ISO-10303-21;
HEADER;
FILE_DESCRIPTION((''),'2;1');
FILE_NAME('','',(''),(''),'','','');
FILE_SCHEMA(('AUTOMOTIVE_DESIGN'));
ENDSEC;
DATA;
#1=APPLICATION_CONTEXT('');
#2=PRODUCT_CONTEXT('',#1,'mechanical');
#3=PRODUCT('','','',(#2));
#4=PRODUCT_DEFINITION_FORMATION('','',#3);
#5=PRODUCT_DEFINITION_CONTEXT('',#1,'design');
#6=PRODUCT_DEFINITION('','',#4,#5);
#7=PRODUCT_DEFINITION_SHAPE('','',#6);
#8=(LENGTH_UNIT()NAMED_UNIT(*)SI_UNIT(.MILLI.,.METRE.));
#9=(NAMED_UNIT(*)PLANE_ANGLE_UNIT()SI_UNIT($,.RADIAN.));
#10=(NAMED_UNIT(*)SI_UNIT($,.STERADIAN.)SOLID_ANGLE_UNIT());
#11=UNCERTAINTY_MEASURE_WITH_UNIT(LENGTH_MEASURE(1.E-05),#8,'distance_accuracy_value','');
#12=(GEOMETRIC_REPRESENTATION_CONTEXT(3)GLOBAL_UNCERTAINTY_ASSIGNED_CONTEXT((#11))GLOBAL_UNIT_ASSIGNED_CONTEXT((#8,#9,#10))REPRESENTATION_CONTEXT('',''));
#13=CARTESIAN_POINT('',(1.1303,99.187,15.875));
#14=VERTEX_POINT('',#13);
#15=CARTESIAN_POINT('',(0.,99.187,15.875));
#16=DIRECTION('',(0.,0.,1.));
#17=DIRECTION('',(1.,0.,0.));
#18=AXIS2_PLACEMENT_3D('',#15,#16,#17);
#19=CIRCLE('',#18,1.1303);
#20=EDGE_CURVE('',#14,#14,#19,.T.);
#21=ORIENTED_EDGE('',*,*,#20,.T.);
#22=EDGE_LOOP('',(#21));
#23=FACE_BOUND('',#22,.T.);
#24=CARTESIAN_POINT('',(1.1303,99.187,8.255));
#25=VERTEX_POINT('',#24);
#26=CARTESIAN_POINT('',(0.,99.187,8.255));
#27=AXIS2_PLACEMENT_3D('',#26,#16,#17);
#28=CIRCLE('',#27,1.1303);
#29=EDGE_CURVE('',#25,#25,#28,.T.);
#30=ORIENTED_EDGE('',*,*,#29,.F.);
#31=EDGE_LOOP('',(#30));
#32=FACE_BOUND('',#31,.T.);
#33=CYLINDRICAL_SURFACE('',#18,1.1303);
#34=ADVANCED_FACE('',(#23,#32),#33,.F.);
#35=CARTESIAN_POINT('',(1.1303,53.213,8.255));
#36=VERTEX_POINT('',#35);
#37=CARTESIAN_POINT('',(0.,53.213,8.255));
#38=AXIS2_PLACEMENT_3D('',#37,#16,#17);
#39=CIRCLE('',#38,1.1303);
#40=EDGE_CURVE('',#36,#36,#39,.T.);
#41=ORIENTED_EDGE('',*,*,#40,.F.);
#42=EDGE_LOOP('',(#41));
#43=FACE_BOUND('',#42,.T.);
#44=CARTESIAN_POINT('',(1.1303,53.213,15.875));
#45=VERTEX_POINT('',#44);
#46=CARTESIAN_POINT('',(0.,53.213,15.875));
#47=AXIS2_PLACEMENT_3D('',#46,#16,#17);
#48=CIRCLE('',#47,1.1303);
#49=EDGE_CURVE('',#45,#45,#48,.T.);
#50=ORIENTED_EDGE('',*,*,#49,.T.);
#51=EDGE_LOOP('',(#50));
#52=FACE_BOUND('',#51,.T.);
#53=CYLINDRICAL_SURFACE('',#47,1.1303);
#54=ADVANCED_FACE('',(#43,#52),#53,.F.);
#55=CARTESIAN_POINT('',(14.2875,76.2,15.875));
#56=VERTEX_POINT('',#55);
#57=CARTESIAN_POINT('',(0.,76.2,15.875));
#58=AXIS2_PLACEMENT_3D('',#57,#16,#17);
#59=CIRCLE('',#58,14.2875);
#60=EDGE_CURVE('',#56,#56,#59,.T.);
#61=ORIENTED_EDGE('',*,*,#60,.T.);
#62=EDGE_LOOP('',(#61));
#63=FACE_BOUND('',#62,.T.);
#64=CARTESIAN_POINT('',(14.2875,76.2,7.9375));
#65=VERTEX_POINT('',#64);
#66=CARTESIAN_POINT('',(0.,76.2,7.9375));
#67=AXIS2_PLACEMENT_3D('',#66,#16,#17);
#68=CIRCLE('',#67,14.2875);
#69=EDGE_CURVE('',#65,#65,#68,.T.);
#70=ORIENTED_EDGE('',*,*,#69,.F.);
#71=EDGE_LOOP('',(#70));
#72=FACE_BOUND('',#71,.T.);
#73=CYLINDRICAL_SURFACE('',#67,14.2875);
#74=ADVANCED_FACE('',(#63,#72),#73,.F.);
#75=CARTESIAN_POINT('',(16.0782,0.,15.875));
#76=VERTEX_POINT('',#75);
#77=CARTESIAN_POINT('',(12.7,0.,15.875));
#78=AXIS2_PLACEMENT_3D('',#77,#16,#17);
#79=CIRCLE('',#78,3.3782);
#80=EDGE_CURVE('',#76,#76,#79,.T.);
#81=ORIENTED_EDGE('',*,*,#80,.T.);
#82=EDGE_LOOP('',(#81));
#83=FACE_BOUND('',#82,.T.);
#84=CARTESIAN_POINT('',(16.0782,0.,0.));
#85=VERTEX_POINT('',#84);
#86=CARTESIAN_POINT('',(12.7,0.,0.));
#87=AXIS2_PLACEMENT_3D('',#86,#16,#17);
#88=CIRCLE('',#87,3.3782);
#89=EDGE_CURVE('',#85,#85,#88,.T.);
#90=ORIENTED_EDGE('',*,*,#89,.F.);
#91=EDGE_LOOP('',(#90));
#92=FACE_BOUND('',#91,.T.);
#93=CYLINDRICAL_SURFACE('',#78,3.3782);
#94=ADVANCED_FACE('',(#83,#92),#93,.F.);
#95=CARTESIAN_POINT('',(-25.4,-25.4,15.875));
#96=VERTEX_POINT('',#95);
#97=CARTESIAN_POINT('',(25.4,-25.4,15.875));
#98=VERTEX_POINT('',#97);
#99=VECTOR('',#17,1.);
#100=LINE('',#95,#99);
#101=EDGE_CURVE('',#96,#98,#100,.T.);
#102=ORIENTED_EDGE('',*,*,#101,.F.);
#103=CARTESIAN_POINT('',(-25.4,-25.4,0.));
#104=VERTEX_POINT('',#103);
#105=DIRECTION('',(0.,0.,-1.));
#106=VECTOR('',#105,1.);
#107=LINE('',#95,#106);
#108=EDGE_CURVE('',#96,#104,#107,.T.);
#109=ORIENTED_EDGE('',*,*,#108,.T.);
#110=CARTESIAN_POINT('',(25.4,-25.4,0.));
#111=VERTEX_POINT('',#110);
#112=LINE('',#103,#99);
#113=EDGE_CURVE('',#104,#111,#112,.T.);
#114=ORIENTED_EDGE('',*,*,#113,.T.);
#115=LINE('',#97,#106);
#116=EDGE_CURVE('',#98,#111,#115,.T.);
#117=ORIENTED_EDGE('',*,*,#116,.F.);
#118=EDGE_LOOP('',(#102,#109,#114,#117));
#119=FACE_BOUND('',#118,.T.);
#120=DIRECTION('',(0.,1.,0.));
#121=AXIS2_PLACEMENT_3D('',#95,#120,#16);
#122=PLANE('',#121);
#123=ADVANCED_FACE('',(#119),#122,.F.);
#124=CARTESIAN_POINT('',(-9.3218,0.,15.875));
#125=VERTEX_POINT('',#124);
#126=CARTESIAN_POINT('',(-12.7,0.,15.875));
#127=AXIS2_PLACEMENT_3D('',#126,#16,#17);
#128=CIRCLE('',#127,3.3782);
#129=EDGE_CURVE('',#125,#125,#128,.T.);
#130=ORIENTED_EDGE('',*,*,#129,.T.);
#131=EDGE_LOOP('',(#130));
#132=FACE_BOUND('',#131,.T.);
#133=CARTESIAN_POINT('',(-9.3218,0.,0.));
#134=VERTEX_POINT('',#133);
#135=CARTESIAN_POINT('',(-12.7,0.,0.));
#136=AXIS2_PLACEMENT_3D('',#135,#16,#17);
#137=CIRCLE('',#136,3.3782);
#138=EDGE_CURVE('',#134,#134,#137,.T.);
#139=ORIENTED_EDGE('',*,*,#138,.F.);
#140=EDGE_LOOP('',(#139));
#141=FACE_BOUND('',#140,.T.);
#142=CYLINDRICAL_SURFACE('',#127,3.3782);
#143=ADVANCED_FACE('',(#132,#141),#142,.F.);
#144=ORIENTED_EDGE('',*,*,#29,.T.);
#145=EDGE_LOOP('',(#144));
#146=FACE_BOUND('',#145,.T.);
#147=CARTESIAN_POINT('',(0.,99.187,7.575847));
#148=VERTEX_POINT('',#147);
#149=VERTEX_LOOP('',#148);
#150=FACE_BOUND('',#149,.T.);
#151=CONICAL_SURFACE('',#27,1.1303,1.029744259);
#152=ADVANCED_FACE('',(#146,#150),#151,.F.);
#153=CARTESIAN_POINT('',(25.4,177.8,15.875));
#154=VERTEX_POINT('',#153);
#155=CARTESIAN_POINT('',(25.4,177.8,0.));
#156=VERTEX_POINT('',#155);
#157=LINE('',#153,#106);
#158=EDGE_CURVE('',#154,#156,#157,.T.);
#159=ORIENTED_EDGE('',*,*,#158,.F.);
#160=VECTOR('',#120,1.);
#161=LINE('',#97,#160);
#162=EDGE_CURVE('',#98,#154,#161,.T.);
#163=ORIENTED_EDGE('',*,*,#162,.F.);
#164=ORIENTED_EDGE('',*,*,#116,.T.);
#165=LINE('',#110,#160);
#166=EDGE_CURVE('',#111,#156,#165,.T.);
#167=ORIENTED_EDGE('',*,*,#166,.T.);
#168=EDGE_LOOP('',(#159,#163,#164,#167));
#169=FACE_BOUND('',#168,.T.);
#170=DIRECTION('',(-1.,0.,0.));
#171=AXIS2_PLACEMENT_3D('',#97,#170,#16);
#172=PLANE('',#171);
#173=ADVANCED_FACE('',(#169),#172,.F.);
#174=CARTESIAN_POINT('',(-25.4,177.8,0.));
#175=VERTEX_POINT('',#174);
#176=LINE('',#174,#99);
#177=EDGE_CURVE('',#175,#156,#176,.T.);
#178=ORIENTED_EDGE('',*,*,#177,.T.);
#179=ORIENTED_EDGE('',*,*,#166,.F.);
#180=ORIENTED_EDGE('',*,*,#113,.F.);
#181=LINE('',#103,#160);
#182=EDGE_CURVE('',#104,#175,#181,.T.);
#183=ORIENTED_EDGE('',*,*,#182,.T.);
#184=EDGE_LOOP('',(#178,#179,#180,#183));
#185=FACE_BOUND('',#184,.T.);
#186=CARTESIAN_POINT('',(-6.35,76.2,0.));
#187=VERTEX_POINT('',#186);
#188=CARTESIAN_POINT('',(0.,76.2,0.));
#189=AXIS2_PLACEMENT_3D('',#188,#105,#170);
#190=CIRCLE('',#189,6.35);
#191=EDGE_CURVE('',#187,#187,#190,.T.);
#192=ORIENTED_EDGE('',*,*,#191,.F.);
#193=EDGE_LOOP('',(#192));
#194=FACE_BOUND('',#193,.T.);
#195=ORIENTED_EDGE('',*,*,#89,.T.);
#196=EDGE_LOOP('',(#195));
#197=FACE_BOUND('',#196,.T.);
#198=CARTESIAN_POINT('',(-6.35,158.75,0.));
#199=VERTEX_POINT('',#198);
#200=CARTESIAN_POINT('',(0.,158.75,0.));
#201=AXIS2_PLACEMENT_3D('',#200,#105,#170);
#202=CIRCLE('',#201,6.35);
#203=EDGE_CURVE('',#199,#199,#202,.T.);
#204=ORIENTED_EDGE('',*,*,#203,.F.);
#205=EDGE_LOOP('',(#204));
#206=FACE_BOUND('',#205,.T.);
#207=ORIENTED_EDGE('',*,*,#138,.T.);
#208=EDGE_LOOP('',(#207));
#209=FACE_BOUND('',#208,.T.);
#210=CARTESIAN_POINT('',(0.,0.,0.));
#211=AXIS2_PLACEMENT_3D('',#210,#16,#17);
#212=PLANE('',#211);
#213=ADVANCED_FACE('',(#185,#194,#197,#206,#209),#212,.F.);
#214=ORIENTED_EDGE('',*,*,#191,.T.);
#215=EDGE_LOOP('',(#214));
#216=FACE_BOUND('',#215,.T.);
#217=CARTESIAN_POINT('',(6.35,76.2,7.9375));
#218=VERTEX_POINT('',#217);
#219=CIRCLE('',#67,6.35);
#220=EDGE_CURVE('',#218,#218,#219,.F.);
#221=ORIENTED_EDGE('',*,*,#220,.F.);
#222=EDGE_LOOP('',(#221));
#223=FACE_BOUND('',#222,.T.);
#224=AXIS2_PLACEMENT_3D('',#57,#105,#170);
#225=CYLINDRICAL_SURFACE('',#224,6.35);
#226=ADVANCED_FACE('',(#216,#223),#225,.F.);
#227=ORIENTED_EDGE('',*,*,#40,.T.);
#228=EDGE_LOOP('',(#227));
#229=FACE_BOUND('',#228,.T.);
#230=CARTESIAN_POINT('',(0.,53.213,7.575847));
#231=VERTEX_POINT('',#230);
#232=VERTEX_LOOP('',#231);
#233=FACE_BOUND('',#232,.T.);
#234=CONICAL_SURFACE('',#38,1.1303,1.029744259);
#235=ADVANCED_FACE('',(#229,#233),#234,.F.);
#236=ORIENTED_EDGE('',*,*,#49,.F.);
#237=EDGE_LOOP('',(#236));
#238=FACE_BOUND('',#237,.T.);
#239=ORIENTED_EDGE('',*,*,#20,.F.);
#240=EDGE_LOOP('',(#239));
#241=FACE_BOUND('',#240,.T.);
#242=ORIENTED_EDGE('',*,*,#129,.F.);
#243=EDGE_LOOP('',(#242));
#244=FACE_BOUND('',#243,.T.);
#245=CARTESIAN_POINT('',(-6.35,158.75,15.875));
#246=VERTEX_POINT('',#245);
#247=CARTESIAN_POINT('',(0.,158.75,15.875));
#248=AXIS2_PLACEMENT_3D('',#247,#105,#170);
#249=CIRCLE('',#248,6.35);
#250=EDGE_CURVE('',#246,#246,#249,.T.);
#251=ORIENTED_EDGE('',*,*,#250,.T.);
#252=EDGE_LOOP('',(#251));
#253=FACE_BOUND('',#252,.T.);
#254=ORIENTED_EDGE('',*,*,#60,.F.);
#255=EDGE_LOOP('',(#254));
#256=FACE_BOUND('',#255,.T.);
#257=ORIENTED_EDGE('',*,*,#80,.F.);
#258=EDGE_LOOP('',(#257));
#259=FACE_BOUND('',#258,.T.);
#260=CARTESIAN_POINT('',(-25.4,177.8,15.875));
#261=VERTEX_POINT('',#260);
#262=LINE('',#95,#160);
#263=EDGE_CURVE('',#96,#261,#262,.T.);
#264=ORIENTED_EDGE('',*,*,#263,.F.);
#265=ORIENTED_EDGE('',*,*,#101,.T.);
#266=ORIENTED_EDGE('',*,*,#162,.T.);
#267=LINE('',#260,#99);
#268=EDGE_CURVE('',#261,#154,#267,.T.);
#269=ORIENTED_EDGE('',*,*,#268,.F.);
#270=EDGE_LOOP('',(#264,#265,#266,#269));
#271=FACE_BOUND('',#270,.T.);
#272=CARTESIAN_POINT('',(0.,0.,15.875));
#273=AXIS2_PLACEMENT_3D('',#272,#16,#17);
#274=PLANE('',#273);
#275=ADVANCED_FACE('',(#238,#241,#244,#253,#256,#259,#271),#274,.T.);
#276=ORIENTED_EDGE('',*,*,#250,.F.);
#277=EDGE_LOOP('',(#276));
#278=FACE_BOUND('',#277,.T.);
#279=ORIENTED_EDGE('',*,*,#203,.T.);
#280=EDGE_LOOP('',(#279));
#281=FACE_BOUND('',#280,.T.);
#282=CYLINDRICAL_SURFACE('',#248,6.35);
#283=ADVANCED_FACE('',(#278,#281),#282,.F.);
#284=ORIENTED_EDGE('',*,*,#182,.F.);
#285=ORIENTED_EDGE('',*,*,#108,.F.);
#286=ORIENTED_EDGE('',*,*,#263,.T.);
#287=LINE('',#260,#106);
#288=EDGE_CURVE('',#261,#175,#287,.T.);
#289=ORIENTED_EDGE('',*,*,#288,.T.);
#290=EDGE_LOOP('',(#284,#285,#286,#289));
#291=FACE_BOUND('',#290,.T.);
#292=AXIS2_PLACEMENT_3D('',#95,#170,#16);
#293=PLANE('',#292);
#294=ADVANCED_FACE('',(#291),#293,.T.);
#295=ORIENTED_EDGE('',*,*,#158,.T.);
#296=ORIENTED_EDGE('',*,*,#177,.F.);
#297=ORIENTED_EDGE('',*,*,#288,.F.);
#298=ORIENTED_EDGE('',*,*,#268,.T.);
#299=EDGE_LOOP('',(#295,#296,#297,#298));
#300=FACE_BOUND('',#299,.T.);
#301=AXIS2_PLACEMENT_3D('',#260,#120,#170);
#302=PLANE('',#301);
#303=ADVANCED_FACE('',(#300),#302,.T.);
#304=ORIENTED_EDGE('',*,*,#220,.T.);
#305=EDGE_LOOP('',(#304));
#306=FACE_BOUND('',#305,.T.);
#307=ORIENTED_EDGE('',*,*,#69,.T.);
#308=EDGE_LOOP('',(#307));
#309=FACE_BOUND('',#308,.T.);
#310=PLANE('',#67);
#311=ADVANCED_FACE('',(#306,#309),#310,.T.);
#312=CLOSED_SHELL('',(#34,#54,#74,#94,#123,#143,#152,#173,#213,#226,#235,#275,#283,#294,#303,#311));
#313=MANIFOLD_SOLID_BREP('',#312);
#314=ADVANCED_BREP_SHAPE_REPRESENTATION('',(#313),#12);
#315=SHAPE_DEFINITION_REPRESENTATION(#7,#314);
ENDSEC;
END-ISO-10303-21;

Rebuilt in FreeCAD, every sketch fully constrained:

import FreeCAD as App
import Part
import Sketcher

V = App.Vector
Q = App.Units.Quantity

doc = App.newDocument("Part")
body = doc.addObject("PartDesign::Body", "Body")

sketch1 = doc.addObject("Sketcher::SketchObject", "Sketch")
body.addObject(sketch1)
sketch1.AttachmentSupport = (doc.XY_Plane, [""])
sketch1.MapMode = "FlatFace"
sketch1.addGeometry(Part.LineSegment(V(-25, 178, 0), V(-25, -25, 0)), False)
sketch1.addGeometry(Part.LineSegment(V(-25, -25, 0), V(25, -25, 0)), False)
sketch1.addGeometry(Part.LineSegment(V(25, -25, 0), V(25, 178, 0)), False)
sketch1.addGeometry(Part.LineSegment(V(25, 178, 0), V(-25, 178, 0)), False)
sketch1.addConstraint(Sketcher.Constraint("Coincident", 0, 2, 1, 1))
sketch1.addConstraint(Sketcher.Constraint("Coincident", 1, 2, 2, 1))
sketch1.addConstraint(Sketcher.Constraint("Coincident", 2, 2, 3, 1))
sketch1.addConstraint(Sketcher.Constraint("Coincident", 3, 2, 0, 1))
sketch1.addConstraint(Sketcher.Constraint("Vertical", 0))
sketch1.addConstraint(Sketcher.Constraint("Horizontal", 1))
sketch1.addConstraint(Sketcher.Constraint("Vertical", 2))
sketch1.addConstraint(Sketcher.Constraint("Horizontal", 3))
sketch1.addConstraint(Sketcher.Constraint("DistanceX", 1, 1, 1, 2, Q("2 in")))
sketch1.addConstraint(Sketcher.Constraint("DistanceY", 0, 2, 0, 1, Q("8 in")))
sketch1.addConstraint(Sketcher.Constraint("DistanceX", 0, 2, -1, 1, Q("1 in")))
sketch1.addConstraint(Sketcher.Constraint("DistanceY", 0, 2, -1, 1, Q("1 in")))
pad1 = doc.addObject("PartDesign::Pad", "Pad")
body.addObject(pad1)
pad1.Profile = sketch1
pad1.Length = Q("0.625 in")

sketch2 = doc.addObject("Sketcher::SketchObject", "Sketch001")
body.addObject(sketch2)
sketch2.AttachmentSupport = (doc.XY_Plane, [""])
sketch2.MapMode = "FlatFace"
sketch2.AttachmentOffset = App.Placement(V(0, 0, 0.625 * 25.4), App.Rotation())
sketch2.addGeometry(Part.Circle(V(12.7, 0, 0), V(0, 0, 1), 3.4), False)
sketch2.addGeometry(Part.Circle(V(-12.7, 0, 0), V(0, 0, 1), 3.4), False)
sketch2.addConstraint(Sketcher.Constraint("Equal", 0, 1))
sketch2.addConstraint(Sketcher.Constraint("Symmetric", 0, 3, 1, 3, -1, 1))
sketch2.addConstraint(Sketcher.Constraint("PointOnObject", 0, 3, -1))
sketch2.addConstraint(Sketcher.Constraint("Diameter", 0, Q("0.266 in")))
sketch2.addConstraint(Sketcher.Constraint("DistanceX", 1, 3, 0, 3, Q("1 in")))
doc.recompute()
hole = doc.addObject("PartDesign::Hole", "Hole")
body.addObject(hole)
hole.Profile = sketch2
hole.ThreadType = "None"
hole.Diameter = Q("0.266 in")
hole.DepthType = "ThroughAll"

sketch3 = doc.addObject("Sketcher::SketchObject", "Sketch002")
body.addObject(sketch3)
sketch3.AttachmentSupport = (doc.XY_Plane, [""])
sketch3.MapMode = "FlatFace"
sketch3.addGeometry(Part.Circle(V(0, 159, 0), V(0, 0, 1), 6), False)
sketch3.addGeometry(Part.Circle(V(0, 76, 0), V(0, 0, 1), 6), False)
sketch3.addConstraint(Sketcher.Constraint("Equal", 0, 1))
sketch3.addConstraint(Sketcher.Constraint("PointOnObject", 0, 3, -2))
sketch3.addConstraint(Sketcher.Constraint("PointOnObject", 1, 3, -2))
sketch3.addConstraint(Sketcher.Constraint("Diameter", 0, Q("0.5 in")))
sketch3.addConstraint(Sketcher.Constraint("DistanceY", -1, 1, 1, 3, Q("3 in")))
sketch3.addConstraint(Sketcher.Constraint("DistanceY", -1, 1, 0, 3, Q("6.25 in")))
pocket1 = doc.addObject("PartDesign::Pocket", "Pocket")
body.addObject(pocket1)
pocket1.Profile = sketch3
pocket1.Type = "ThroughAll"
pocket1.Reversed = True

sketch4 = doc.addObject("Sketcher::SketchObject", "Sketch003")
body.addObject(sketch4)
sketch4.AttachmentSupport = (doc.XY_Plane, [""])
sketch4.MapMode = "FlatFace"
sketch4.AttachmentOffset = App.Placement(V(0, 0, 0.625 * 25.4), App.Rotation())
sketch4.addGeometry(Part.Circle(V(0, 76, 0), V(0, 0, 1), 14), False)
sketch4.addConstraint(Sketcher.Constraint("PointOnObject", 0, 3, -2))
sketch4.addConstraint(Sketcher.Constraint("Diameter", 0, Q("1.125 in")))
sketch4.addConstraint(Sketcher.Constraint("DistanceY", -1, 1, 0, 3, Q("3 in")))
pocket2 = doc.addObject("PartDesign::Pocket", "Pocket001")
body.addObject(pocket2)
pocket2.Profile = sketch4
pocket2.Length = Q("0.3125 in")

sketch5 = doc.addObject("Sketcher::SketchObject", "Sketch004")
body.addObject(sketch5)
sketch5.AttachmentSupport = (doc.XY_Plane, [""])
sketch5.MapMode = "FlatFace"
sketch5.AttachmentOffset = App.Placement(V(0, 0, 0.625 * 25.4), App.Rotation())
sketch5.addGeometry(Part.Circle(V(0, 99.2, 0), V(0, 0, 1), 1.1), False)
sketch5.addGeometry(Part.Circle(V(0, 53.2, 0), V(0, 0, 1), 1.1), False)
sketch5.addConstraint(Sketcher.Constraint("Equal", 0, 1))
sketch5.addConstraint(Sketcher.Constraint("PointOnObject", 0, 3, -2))
sketch5.addConstraint(Sketcher.Constraint("PointOnObject", 1, 3, -2))
sketch5.addConstraint(Sketcher.Constraint("Diameter", 0, Q("0.089 in")))
sketch5.addConstraint(Sketcher.Constraint("DistanceY", 1, 3, 0, 3, Q("1.81 in")))
sketch5.addConstraint(Sketcher.Constraint("DistanceY", -1, 1, 0, 3, Q("3.905 in")))
doc.recompute()
hole2 = doc.addObject("PartDesign::Hole", "Hole001")
body.addObject(hole2)
hole2.Profile = sketch5
hole2.ThreadType = "None"
hole2.Diameter = Q("0.089 in")
hole2.DepthType = "Dimension"
hole2.Depth = Q("0.3 in")
hole2.DrillPoint = "Angled"
hole2.DrillPointAngle = 118

doc.recompute()
